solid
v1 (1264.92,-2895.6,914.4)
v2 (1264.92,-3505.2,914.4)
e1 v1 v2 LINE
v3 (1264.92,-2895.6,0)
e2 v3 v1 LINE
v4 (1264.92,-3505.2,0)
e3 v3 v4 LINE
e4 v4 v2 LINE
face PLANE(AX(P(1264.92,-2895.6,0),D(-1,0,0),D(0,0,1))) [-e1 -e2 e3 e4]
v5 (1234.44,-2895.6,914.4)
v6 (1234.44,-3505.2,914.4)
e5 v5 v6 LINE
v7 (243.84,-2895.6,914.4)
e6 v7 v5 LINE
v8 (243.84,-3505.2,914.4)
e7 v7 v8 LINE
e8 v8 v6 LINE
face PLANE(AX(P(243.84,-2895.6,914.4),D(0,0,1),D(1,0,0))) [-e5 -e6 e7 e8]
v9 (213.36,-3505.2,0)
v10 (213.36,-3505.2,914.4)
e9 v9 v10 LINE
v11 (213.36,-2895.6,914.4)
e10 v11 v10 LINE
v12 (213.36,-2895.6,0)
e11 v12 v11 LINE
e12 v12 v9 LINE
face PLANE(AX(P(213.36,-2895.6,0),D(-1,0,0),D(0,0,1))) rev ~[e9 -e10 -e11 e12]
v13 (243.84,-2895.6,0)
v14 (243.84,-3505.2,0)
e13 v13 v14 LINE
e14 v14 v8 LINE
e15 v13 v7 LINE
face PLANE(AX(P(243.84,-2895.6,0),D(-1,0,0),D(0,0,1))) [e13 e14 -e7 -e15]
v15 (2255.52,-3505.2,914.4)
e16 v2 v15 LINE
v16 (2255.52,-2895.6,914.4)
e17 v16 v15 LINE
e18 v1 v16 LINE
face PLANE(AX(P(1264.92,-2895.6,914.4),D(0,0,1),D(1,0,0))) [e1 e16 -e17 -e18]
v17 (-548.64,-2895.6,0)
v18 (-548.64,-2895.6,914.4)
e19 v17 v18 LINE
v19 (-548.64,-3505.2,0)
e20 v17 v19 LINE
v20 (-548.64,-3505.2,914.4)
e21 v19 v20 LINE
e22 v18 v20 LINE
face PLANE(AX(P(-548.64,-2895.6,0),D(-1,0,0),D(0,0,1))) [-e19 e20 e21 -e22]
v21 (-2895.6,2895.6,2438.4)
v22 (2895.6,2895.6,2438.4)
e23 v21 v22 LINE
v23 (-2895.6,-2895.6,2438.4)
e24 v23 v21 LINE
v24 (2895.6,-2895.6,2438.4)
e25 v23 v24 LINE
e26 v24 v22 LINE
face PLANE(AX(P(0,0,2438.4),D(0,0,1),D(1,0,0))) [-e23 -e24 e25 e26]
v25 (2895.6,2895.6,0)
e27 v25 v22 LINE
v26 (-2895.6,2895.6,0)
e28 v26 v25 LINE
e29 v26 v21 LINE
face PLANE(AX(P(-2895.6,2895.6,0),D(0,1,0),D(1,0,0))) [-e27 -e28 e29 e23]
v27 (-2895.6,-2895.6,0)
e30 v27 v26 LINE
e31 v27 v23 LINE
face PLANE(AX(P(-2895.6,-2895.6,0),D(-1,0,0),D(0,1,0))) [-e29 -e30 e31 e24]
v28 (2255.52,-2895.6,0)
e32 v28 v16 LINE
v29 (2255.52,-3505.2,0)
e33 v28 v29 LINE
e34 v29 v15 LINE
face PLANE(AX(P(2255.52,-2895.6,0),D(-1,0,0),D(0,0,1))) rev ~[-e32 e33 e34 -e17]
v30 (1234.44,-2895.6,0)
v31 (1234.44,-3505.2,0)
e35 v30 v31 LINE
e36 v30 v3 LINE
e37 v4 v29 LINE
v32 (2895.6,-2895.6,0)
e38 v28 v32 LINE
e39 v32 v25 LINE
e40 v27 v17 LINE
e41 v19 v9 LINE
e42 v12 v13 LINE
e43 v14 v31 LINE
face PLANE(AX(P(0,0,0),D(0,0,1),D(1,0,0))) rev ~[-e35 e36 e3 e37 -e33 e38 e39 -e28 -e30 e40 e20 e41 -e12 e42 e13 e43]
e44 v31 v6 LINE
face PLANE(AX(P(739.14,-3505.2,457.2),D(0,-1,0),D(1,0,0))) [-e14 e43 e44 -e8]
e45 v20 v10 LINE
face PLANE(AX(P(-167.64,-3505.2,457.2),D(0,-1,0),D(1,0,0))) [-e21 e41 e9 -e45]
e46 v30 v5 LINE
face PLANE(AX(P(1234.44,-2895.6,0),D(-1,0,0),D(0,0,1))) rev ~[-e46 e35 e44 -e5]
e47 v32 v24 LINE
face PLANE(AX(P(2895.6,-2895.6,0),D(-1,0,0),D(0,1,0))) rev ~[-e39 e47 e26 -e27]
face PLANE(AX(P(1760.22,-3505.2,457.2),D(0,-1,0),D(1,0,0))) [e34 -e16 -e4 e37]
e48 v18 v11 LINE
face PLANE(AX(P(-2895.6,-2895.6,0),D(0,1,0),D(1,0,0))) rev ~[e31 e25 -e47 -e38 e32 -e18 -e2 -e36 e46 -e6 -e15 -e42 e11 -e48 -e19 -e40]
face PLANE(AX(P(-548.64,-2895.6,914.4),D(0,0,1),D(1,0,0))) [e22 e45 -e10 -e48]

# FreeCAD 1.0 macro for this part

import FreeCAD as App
import Part
import Sketcher
Q = App.Units.Quantity


def add_polygon(sketch, points):
    """Adds a closed chain of lines whose ends are joined by coincident constraints."""
    first, n = sketch.GeometryCount, len(points)
    for a, b in zip(points, points[1:] + points[:1]):
        sketch.addGeometry(Part.LineSegment(App.Vector(*a, 0), App.Vector(*b, 0)), False)
    for i in range(n):
        sketch.addConstraint(Sketcher.Constraint("Coincident", first + i, 2, first + (i + 1) % n, 1))

doc = App.newDocument("Part")
body = doc.addObject("PartDesign::Body", "Body")

# Sketch on XY plane
sketch1 = body.newObject("Sketcher::SketchObject", "Sketch")
sketch1.AttachmentSupport = (doc.getObject("XY_Plane"), [""])
sketch1.MapMode = "FlatFace"
add_polygon(sketch1, [(-2896, 2896), (-2896, -2896), (2896, -2896), (2896, 2896)])  # lines 0-3
sketch1.addConstraint([
    Sketcher.Constraint("Vertical", 0),
    Sketcher.Constraint("Horizontal", 1),
    Sketcher.Constraint("Vertical", 2),
    Sketcher.Constraint("Horizontal", 3),
    Sketcher.Constraint("Symmetric", 0, 2, 2, 2, -1, 1),
    Sketcher.Constraint("Equal", 3, 0),
    Sketcher.Constraint("DistanceX", 1, 1, 1, 2, Q("228 in")),
])
pad1 = body.newObject("PartDesign::Pad", "Pad")
pad1.Profile = sketch1
pad1.Length = Q("96 in")

# Sketch on XZ plane
sketch2 = body.newObject("Sketcher::SketchObject", "Sketch001")
sketch2.AttachmentSupport = (doc.getObject("XZ_Plane"), [""])
sketch2.MapMode = "FlatFace"
sketch2.AttachmentOffset = App.Placement(App.Vector(0, 0, 114 * 25.4), App.Rotation())
add_polygon(sketch2, [(-549, 914), (-549, 0), (213, 0), (213, 914)])  # lines 0-3
add_polygon(sketch2, [(244, 914), (244, 0), (1234, 0), (1234, 914)])  # lines 4-7
add_polygon(sketch2, [(1265, 914), (1265, 0), (2256, 0), (2256, 914)])  # lines 8-11
sketch2.addConstraint([
    Sketcher.Constraint("Vertical", 0),
    Sketcher.Constraint("Horizontal", 1),
    Sketcher.Constraint("Vertical", 2),
    Sketcher.Constraint("Horizontal", 3),
    Sketcher.Constraint("Vertical", 4),
    Sketcher.Constraint("Horizontal", 5),
    Sketcher.Constraint("Vertical", 6),
    Sketcher.Constraint("Horizontal", 7),
    Sketcher.Constraint("Vertical", 8),
    Sketcher.Constraint("Horizontal", 9),
    Sketcher.Constraint("Vertical", 10),
    Sketcher.Constraint("Horizontal", 11),
    Sketcher.Constraint("PointOnObject", 0, 2, -1),
    Sketcher.Constraint("PointOnObject", 4, 2, -1),
    Sketcher.Constraint("PointOnObject", 8, 2, -1),
    Sketcher.Constraint("Horizontal", 3, 2, 6, 2),
    Sketcher.Constraint("Horizontal", 7, 2, 10, 2),
    Sketcher.Constraint("Equal", 7, 9),
    Sketcher.Constraint("DistanceX", 1, 1, 1, 2, Q("30 in")),
    Sketcher.Constraint("DistanceX", 5, 1, 5, 2, Q("39 in")),
    Sketcher.Constraint("DistanceY", 0, 2, 0, 1, Q("36 in")),
    Sketcher.Constraint("DistanceX", 0, 2, -1, 1, Q("21.6 in")),
    Sketcher.Constraint("DistanceX", -1, 1, 4, 2, Q("9.6 in")),
    Sketcher.Constraint("DistanceX", -1, 1, 8, 2, Q("49.8 in")),
])
pad2 = body.newObject("PartDesign::Pad", "Pad001")
pad2.Profile = sketch2
pad2.Length = Q("24 in")

doc.recompute()
